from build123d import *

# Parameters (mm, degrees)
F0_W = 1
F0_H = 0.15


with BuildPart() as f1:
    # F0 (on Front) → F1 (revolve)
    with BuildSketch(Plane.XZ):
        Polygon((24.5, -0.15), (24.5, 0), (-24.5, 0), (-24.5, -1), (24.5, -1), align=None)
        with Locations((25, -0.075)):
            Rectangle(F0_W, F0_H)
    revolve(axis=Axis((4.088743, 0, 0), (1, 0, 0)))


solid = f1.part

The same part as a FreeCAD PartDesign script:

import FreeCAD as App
import Part
import Sketcher

doc = App.newDocument("Part")
body = doc.addObject("PartDesign::Body", "Body")

sketch1 = body.newObject("Sketcher::SketchObject", "Sketch")
sketch1.AttachmentSupport = (doc.getObject("XZ_Plane"), [""])
sketch1.MapMode = "FlatFace"
sketch1.addGeometry(Part.LineSegment(App.Vector(-24.5, 0, 0), App.Vector(-24.5, -1, 0)), False)
sketch1.addGeometry(Part.LineSegment(App.Vector(-24.5, -1, 0), App.Vector(24.5, -1, 0)), False)
sketch1.addGeometry(Part.LineSegment(App.Vector(24.5, -1, 0), App.Vector(24.5, -0.15, 0)), False)
sketch1.addGeometry(Part.LineSegment(App.Vector(24.5, -0.15, 0), App.Vector(25.5, -0.15, 0)), False)
sketch1.addGeometry(Part.LineSegment(App.Vector(25.5, -0.15, 0), App.Vector(25.5, 0, 0)), False)
sketch1.addGeometry(Part.LineSegment(App.Vector(25.5, 0, 0), App.Vector(-24.5, 0, 0)), False)
sketch1.addConstraint(Sketcher.Constraint("Coincident", 0, 2, 1, 1))
sketch1.addConstraint(Sketcher.Constraint("Coincident", 1, 2, 2, 1))
sketch1.addConstraint(Sketcher.Constraint("Coincident", 2, 2, 3, 1))
sketch1.addConstraint(Sketcher.Constraint("Coincident", 3, 2, 4, 1))
sketch1.addConstraint(Sketcher.Constraint("Coincident", 4, 2, 5, 1))
sketch1.addConstraint(Sketcher.Constraint("Coincident", 5, 2, 0, 1))
sketch1.addConstraint(Sketcher.Constraint("Vertical", 0))
sketch1.addConstraint(Sketcher.Constraint("Horizontal", 1))
sketch1.addConstraint(Sketcher.Constraint("Vertical", 2))
sketch1.addConstraint(Sketcher.Constraint("Horizontal", 3))
sketch1.addConstraint(Sketcher.Constraint("Vertical", 4))
sketch1.addConstraint(Sketcher.Constraint("Horizontal", 5))
sketch1.addConstraint(Sketcher.Constraint("PointOnObject", 4, 2, -1))
sketch1.addConstraint(Sketcher.Constraint("Equal", 3, 0))
sketch1.addConstraint(Sketcher.Constraint("DistanceX", 1, 1, 1, 2, 49.0))
sketch1.addConstraint(Sketcher.Constraint("DistanceX", 3, 1, 3, 2, 1.0))
sketch1.addConstraint(Sketcher.Constraint("DistanceY", 2, 1, 2, 2, 0.85))
sketch1.addConstraint(Sketcher.Constraint("DistanceX", 0, 2, -1, 1, 24.5))
revolution = body.newObject("PartDesign::Revolution", "Revolution")
revolution.Profile = sketch1
revolution.ReferenceAxis = (sketch1, ["H_Axis"])
revolution.Angle = 360

doc.recompute()
